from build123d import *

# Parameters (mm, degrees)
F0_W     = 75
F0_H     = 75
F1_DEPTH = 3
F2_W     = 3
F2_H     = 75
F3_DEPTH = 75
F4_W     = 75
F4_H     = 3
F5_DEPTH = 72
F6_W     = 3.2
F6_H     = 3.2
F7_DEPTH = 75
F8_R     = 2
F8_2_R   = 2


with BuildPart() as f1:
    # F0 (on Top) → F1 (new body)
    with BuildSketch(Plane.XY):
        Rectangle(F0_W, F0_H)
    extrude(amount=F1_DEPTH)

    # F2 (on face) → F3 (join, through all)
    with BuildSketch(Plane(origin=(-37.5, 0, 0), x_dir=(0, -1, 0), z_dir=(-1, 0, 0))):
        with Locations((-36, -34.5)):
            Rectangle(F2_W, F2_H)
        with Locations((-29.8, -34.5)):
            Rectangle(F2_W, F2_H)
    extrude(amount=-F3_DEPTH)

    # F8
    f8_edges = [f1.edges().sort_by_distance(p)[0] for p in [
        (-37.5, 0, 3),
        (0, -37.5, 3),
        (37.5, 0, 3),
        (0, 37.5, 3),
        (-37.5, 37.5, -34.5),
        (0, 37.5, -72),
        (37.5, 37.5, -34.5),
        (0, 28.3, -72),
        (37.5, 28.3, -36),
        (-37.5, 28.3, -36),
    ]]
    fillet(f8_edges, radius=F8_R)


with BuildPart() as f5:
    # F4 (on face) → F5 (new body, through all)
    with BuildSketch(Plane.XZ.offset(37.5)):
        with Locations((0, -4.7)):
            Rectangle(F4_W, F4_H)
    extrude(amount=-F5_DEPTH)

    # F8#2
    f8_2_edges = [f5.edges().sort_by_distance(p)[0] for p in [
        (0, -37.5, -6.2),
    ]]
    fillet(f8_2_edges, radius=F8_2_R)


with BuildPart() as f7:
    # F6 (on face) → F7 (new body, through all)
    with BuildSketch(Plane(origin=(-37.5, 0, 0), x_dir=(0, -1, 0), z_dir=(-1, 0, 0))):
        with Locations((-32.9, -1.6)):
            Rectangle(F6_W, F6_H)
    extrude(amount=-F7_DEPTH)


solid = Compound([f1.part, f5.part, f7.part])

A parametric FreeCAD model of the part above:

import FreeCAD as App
import Part
import Sketcher
Q = App.Units.Quantity


def edges_at(feature, points):
    """Names of the edges that pass closest to the given points."""
    edges = feature.Shape.Edges
    near = lambda p: min(range(len(edges)), key=lambda i: edges[i].distToShape(Part.Vertex(*p))[0])
    return sorted({f"Edge{near(p) + 1}" for p in points})

doc = App.newDocument("Part")
body = doc.addObject("PartDesign::Body", "Body")

# Sketch on XY plane
sketch1 = body.newObject("Sketcher::SketchObject", "Sketch")
sketch1.AttachmentSupport = (doc.getObject("XY_Plane"), [""])
sketch1.MapMode = "FlatFace"
sketch1.addGeometry(Part.LineSegment(App.Vector(-38, 38, 0), App.Vector(-38, -38, 0)), False)
sketch1.addGeometry(Part.LineSegment(App.Vector(-38, -38, 0), App.Vector(38, -38, 0)), False)
sketch1.addGeometry(Part.LineSegment(App.Vector(38, -38, 0), App.Vector(38, 38, 0)), False)
sketch1.addGeometry(Part.LineSegment(App.Vector(38, 38, 0), App.Vector(-38, 38, 0)), False)
sketch1.addConstraint(Sketcher.Constraint("Coincident", 0, 2, 1, 1))
sketch1.addConstraint(Sketcher.Constraint("Coincident", 1, 2, 2, 1))
sketch1.addConstraint(Sketcher.Constraint("Coincident", 2, 2, 3, 1))
sketch1.addConstraint(Sketcher.Constraint("Coincident", 3, 2, 0, 1))
sketch1.addConstraint(Sketcher.Constraint("Vertical", 0))
sketch1.addConstraint(Sketcher.Constraint("Horizontal", 1))
sketch1.addConstraint(Sketcher.Constraint("Vertical", 2))
sketch1.addConstraint(Sketcher.Constraint("Horizontal", 3))
sketch1.addConstraint(Sketcher.Constraint("Symmetric", 0, 2, 2, 2, -1, 1))
sketch1.addConstraint(Sketcher.Constraint("Equal", 3, 0))
sketch1.addConstraint(Sketcher.Constraint("DistanceX", 1, 1, 1, 2, Q("75 mm")))
pad1 = body.newObject("PartDesign::Pad", "Pad")
pad1.Profile = sketch1
pad1.Length = 3

# Sketch on YZ plane
sketch2 = body.newObject("Sketcher::SketchObject", "Sketch001")
sketch2.AttachmentSupport = (doc.getObject("YZ_Plane"), [""])
sketch2.MapMode = "FlatFace"
sketch2.AttachmentOffset = App.Placement(App.Vector(0, 0, -37.5), App.Rotation())
sketch2.addGeometry(Part.LineSegment(App.Vector(37.5, 3, 0), App.Vector(37.5, -72, 0)), False)
sketch2.addGeometry(Part.LineSegment(App.Vector(37.5, -72, 0), App.Vector(34.5, -72, 0)), False)
sketch2.addGeometry(Part.LineSegment(App.Vector(34.5, -72, 0), App.Vector(34.5, 3, 0)), False)
sketch2.addGeometry(Part.LineSegment(App.Vector(34.5, 3, 0), App.Vector(37.5, 3, 0)), False)
sketch2.addGeometry(Part.LineSegment(App.Vector(31.3, 3, 0), App.Vector(31.3, -72, 0)), False)
sketch2.addGeometry(Part.LineSegment(App.Vector(31.3, -72, 0), App.Vector(28.3, -72, 0)), False)
sketch2.addGeometry(Part.LineSegment(App.Vector(28.3, -72, 0), App.Vector(28.3, 3, 0)), False)
sketch2.addGeometry(Part.LineSegment(App.Vector(28.3, 3, 0), App.Vector(31.3, 3, 0)), False)
sketch2.addConstraint(Sketcher.Constraint("Coincident", 0, 2, 1, 1))
sketch2.addConstraint(Sketcher.Constraint("Coincident", 1, 2, 2, 1))
sketch2.addConstraint(Sketcher.Constraint("Coincident", 2, 2, 3, 1))
sketch2.addConstraint(Sketcher.Constraint("Coincident", 3, 2, 0, 1))
sketch2.addConstraint(Sketcher.Constraint("Coincident", 4, 2, 5, 1))
sketch2.addConstraint(Sketcher.Constraint("Coincident", 5, 2, 6, 1))
sketch2.addConstraint(Sketcher.Constraint("Coincident", 6, 2, 7, 1))
sketch2.addConstraint(Sketcher.Constraint("Coincident", 7, 2, 4, 1))
sketch2.addConstraint(Sketcher.Constraint("Vertical", 0))
sketch2.addConstraint(Sketcher.Constraint("Horizontal", 1))
sketch2.addConstraint(Sketcher.Constraint("Vertical", 2))
sketch2.addConstraint(Sketcher.Constraint("Horizontal", 3))
sketch2.addConstraint(Sketcher.Constraint("Vertical", 4))
sketch2.addConstraint(Sketcher.Constraint("Horizontal", 5))
sketch2.addConstraint(Sketcher.Constraint("Vertical", 6))
sketch2.addConstraint(Sketcher.Constraint("Horizontal", 7))
sketch2.addConstraint(Sketcher.Constraint("Horizontal", 1, 2, 4, 2))
sketch2.addConstraint(Sketcher.Constraint("Horizontal", 3, 2, 6, 2))
sketch2.addConstraint(Sketcher.Constraint("Equal", 3, 5))
sketch2.addConstraint(Sketcher.Constraint("DistanceX", 1, 2, 1, 1, Q("3 mm")))
sketch2.addConstraint(Sketcher.Constraint("DistanceY", 0, 2, 0, 1, Q("75 mm")))
sketch2.addConstraint(Sketcher.Constraint("DistanceY", 0, 2, -1, 1, Q("72 mm")))
sketch2.addConstraint(Sketcher.Constraint("DistanceX", -1, 1, 0, 2, Q("37.5 mm")))
sketch2.addConstraint(Sketcher.Constraint("DistanceX", -1, 1, 4, 2, Q("31.3 mm")))
pad2 = body.newObject("PartDesign::Pad", "Pad001")
pad2.Profile = sketch2
pad2.Length = 75
doc.recompute()

fillet = body.newObject("PartDesign::Fillet", "Fillet")
fillet.Base = (pad2, edges_at(pad2, [
    (-37.5, 0, 3),
    (0, -37.5, 3),
    (37.5, 0, 3),
    (0, 37.5, 3),
    (-37.5, 37.5, -34.5),
    (0, 37.5, -72),
    (37.5, 37.5, -34.5),
    (0, 28.3, -72),
    (37.5, 28.3, -36),
    (-37.5, 28.3, -36),
]))
fillet.Radius = 2
body2 = doc.addObject("PartDesign::Body", "Body001")

# Sketch on XZ plane
sketch3 = body2.newObject("Sketcher::SketchObject", "Sketch002")
sketch3.AttachmentSupport = (doc.getObject("XZ_Plane001"), [""])
sketch3.MapMode = "FlatFace"
sketch3.AttachmentOffset = App.Placement(App.Vector(0, 0, 37.5), App.Rotation())
sketch3.addGeometry(Part.LineSegment(App.Vector(-37.5, -3.2, 0), App.Vector(-37.5, -6.2, 0)), False)
sketch3.addGeometry(Part.LineSegment(App.Vector(-37.5, -6.2, 0), App.Vector(37.5, -6.2, 0)), False)
sketch3.addGeometry(Part.LineSegment(App.Vector(37.5, -6.2, 0), App.Vector(37.5, -3.2, 0)), False)
sketch3.addGeometry(Part.LineSegment(App.Vector(37.5, -3.2, 0), App.Vector(-37.5, -3.2, 0)), False)
sketch3.addConstraint(Sketcher.Constraint("Coincident", 0, 2, 1, 1))
sketch3.addConstraint(Sketcher.Constraint("Coincident", 1, 2, 2, 1))
sketch3.addConstraint(Sketcher.Constraint("Coincident", 2, 2, 3, 1))
sketch3.addConstraint(Sketcher.Constraint("Coincident", 3, 2, 0, 1))
sketch3.addConstraint(Sketcher.Constraint("Vertical", 0))
sketch3.addConstraint(Sketcher.Constraint("Horizontal", 1))
sketch3.addConstraint(Sketcher.Constraint("Vertical", 2))
sketch3.addConstraint(Sketcher.Constraint("Horizontal", 3))
sketch3.addConstraint(Sketcher.Constraint("DistanceX", 1, 1, 1, 2, Q("75 mm")))
sketch3.addConstraint(Sketcher.Constraint("DistanceY", 0, 2, 0, 1, Q("3 mm")))
sketch3.addConstraint(Sketcher.Constraint("DistanceX", 0, 2, -1, 1, Q("37.5 mm")))
sketch3.addConstraint(Sketcher.Constraint("DistanceY", 0, 2, -1, 1, Q("6.2 mm")))
pad3 = body2.newObject("PartDesign::Pad", "Pad002")
pad3.Profile = sketch3
pad3.Length = 72
pad3.Reversed = True
doc.recompute()

fillet2 = body2.newObject("PartDesign::Fillet", "Fillet001")
fillet2.Base = (pad3, edges_at(pad3, [(0, -37.5, -6.2)]))
fillet2.Radius = 2
body3 = doc.addObject("PartDesign::Body", "Body002")

# Sketch on YZ plane
sketch4 = body3.newObject("Sketcher::SketchObject", "Sketch003")
sketch4.AttachmentSupport = (doc.getObject("YZ_Plane002"), [""])
sketch4.MapMode = "FlatFace"
sketch4.AttachmentOffset = App.Placement(App.Vector(0, 0, -37.5), App.Rotation())
sketch4.addGeometry(Part.LineSegment(App.Vector(34.5, 0, 0), App.Vector(34.5, -3.2, 0)), False)
sketch4.addGeometry(Part.LineSegment(App.Vector(34.5, -3.2, 0), App.Vector(31.3, -3.2, 0)), False)
sketch4.addGeometry(Part.LineSegment(App.Vector(31.3, -3.2, 0), App.Vector(31.3, 0, 0)), False)
sketch4.addGeometry(Part.LineSegment(App.Vector(31.3, 0, 0), App.Vector(34.5, 0, 0)), False)
sketch4.addConstraint(Sketcher.Constraint("Coincident", 0, 2, 1, 1))
sketch4.addConstraint(Sketcher.Constraint("Coincident", 1, 2, 2, 1))
sketch4.addConstraint(Sketcher.Constraint("Coincident", 2, 2, 3, 1))
sketch4.addConstraint(Sketcher.Constraint("Coincident", 3, 2, 0, 1))
sketch4.addConstraint(Sketcher.Constraint("Vertical", 0))
sketch4.addConstraint(Sketcher.Constraint("Horizontal", 1))
sketch4.addConstraint(Sketcher.Constraint("Vertical", 2))
sketch4.addConstraint(Sketcher.Constraint("Horizontal", 3))
sketch4.addConstraint(Sketcher.Constraint("PointOnObject", 2, 2, -1))
sketch4.addConstraint(Sketcher.Constraint("Equal", 3, 0))
sketch4.addConstraint(Sketcher.Constraint("DistanceX", 1, 2, 1, 1, Q("3.2 mm")))
sketch4.addConstraint(Sketcher.Constraint("DistanceX", -1, 1, 0, 2, Q("34.5 mm")))
pad4 = body3.newObject("PartDesign::Pad", "Pad003")
pad4.Profile = sketch4
pad4.Length = 75

doc.recompute()
